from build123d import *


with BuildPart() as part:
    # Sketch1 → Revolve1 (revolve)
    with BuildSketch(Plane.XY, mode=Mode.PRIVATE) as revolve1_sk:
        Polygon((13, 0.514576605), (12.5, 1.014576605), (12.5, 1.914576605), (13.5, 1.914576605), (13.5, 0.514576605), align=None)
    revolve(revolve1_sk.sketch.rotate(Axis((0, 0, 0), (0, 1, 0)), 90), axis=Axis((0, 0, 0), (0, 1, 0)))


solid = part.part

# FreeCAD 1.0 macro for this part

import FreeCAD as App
import Part
import Sketcher

V = App.Vector
Q = App.Units.Quantity


def add_polygon(sketch, points):
    """Adds a closed chain of lines whose ends are joined by coincident constraints."""
    first, n = sketch.GeometryCount, len(points)
    for a, b in zip(points, points[1:] + points[:1]):
        sketch.addGeometry(Part.LineSegment(App.Vector(*a, 0), App.Vector(*b, 0)), False)
    for i in range(n):
        sketch.addConstraint(Sketcher.Constraint("Coincident", first + i, 2, first + (i + 1) % n, 1))

doc = App.newDocument("Part")
params = doc.addObject("Spreadsheet::Sheet", "Params")
for row, (alias, value) in enumerate([
    ("sketch1_width", "1 mm"),
    ("sketch1_width2", "0.5 mm"),
    ("sketch1_height", "1.4 mm"),
    ("revolution_angle", "360 deg"),
], start=1):
    params.set(f"A{row}", alias)
    params.set(f"B{row}", "=" + value)
    params.setAlias(f"B{row}", alias)

body = doc.addObject("PartDesign::Body", "Body")

sketch1 = body.newObject("Sketcher::SketchObject", "Sketch")
sketch1.AttachmentSupport = (doc.getObject("XY_Plane"), [""])
sketch1.MapMode = "FlatFace"
add_polygon(sketch1, [(12.5, 1.014577), (13, 0.514577), (13.5, 0.514577), (13.5, 1.914577), (12.5, 1.914577)])
sketch1.addConstraint([
    Sketcher.Constraint("Horizontal", 1),
    Sketcher.Constraint("Vertical", 2),
    Sketcher.Constraint("Horizontal", 3),
    Sketcher.Constraint("Vertical", 4),
    Sketcher.Constraint("DistanceX", 3, 2, 3, 1, Q("1 mm")),
    Sketcher.Constraint("Angle", 0, Q("-45 deg")),
    Sketcher.Constraint("DistanceX", 1, 1, 1, 2, Q("0.5 mm")),
    Sketcher.Constraint("DistanceY", 2, 1, 2, 2, Q("1.4 mm")),
    Sketcher.Constraint("DistanceX", -1, 1, 0, 2, Q("13 mm")),
    Sketcher.Constraint("DistanceY", -1, 1, 0, 2, Q("0.514577 mm")),
])
sketch1.setExpression("Constraints[9]", "Params.sketch1_width")
sketch1.setExpression("Constraints[11]", "Params.sketch1_width2")
sketch1.setExpression("Constraints[12]", "Params.sketch1_height")
revolution = body.newObject("PartDesign::Revolution", "Revolution")
revolution.Profile = sketch1
revolution.ReferenceAxis = (sketch1, ["V_Axis"])
revolution.setExpression("Angle", "Params.revolution_angle")

doc.recompute()
